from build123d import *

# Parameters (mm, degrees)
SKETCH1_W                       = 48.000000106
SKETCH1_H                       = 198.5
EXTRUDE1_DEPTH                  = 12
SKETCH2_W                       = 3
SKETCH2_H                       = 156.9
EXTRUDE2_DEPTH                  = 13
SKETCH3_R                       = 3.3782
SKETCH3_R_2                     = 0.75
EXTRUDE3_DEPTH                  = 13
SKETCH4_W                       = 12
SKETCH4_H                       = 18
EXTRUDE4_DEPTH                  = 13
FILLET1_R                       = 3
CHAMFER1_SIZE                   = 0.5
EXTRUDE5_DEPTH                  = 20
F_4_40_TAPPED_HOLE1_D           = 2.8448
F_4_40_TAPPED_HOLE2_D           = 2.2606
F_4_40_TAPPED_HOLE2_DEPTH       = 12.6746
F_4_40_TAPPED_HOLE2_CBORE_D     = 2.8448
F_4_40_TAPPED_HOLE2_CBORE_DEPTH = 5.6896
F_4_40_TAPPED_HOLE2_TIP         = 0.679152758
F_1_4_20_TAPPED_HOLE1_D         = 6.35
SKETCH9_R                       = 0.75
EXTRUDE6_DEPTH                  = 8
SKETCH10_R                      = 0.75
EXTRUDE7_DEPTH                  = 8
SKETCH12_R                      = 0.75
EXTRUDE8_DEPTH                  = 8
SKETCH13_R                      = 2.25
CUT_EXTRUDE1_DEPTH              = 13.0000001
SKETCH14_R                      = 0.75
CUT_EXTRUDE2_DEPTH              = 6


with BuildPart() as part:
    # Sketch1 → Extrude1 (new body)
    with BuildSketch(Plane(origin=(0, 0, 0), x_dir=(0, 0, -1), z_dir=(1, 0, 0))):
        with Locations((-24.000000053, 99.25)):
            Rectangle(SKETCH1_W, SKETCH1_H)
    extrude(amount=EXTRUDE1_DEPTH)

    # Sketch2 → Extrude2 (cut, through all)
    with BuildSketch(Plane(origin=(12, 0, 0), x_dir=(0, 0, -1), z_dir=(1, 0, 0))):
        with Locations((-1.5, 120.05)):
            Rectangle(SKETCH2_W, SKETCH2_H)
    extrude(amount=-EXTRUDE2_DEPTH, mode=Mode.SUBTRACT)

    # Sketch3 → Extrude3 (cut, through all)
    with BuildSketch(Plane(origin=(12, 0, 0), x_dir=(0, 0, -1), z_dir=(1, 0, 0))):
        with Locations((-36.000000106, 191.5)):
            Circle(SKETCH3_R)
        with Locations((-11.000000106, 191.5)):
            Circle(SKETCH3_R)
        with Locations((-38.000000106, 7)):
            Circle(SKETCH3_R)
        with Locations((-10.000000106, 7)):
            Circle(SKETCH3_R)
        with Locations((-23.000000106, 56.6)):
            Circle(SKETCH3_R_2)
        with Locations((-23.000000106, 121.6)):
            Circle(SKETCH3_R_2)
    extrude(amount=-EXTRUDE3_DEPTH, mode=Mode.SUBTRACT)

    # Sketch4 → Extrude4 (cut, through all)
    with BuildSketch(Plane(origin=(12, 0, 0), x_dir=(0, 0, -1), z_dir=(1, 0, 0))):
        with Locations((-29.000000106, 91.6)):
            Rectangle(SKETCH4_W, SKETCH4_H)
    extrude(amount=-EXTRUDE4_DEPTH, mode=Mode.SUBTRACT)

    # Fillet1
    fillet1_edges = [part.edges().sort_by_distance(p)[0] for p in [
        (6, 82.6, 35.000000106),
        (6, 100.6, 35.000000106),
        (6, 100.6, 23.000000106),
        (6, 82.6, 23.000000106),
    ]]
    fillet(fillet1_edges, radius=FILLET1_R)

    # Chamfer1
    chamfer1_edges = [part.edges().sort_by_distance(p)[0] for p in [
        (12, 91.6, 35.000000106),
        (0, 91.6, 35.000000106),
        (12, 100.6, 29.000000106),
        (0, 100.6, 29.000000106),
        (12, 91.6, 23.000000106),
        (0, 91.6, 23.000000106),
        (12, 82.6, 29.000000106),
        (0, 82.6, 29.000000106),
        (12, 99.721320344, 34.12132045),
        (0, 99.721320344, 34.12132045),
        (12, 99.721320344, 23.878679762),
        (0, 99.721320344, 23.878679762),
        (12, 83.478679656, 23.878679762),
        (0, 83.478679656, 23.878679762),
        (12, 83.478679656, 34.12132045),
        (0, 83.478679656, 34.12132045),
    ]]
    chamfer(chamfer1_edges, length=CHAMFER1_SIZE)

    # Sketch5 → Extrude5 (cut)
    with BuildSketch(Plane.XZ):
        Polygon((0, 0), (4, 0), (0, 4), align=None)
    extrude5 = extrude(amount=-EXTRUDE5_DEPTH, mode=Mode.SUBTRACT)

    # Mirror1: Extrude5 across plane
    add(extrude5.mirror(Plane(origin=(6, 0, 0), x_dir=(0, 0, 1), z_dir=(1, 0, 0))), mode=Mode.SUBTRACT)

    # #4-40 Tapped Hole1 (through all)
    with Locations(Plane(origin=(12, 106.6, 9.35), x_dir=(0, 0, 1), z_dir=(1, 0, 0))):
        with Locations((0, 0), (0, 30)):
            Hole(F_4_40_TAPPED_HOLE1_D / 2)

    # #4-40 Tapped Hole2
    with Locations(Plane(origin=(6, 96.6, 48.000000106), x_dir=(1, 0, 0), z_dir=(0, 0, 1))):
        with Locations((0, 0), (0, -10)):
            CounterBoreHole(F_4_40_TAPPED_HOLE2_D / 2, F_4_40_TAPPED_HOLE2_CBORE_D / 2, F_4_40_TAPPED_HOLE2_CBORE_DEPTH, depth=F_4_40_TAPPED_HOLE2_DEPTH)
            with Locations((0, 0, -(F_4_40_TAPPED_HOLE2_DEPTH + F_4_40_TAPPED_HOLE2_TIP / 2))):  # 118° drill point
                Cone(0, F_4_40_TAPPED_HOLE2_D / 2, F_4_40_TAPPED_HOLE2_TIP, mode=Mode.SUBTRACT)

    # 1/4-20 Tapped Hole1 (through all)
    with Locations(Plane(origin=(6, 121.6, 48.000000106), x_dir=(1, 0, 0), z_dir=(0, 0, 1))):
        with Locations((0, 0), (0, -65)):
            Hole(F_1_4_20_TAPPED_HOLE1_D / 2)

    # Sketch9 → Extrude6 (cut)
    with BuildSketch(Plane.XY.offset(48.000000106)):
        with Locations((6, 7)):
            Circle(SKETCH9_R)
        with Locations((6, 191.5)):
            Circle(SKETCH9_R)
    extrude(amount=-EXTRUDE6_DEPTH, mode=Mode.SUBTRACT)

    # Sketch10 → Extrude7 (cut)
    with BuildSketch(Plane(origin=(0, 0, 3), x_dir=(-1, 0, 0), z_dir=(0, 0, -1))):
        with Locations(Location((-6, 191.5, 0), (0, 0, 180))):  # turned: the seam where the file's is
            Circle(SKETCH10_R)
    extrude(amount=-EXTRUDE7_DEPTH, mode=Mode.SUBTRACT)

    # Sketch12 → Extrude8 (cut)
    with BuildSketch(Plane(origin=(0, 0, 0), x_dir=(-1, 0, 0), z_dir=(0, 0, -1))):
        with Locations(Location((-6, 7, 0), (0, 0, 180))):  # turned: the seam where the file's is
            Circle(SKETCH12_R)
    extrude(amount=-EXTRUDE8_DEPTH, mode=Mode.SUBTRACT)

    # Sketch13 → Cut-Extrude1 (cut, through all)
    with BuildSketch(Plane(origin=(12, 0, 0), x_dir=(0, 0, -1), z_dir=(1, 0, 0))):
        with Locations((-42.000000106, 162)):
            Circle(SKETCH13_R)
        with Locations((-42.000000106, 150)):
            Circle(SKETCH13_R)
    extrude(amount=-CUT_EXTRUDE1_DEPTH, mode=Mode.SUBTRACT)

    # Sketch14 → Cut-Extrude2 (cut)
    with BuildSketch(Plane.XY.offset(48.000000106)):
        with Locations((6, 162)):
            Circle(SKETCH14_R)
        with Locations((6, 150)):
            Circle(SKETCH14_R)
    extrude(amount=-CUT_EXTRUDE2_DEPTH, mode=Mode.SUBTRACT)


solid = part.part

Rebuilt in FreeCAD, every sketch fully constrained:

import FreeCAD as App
import Part
import Sketcher

V = App.Vector


def edges_at(feature, points):
    """Names of the edges that pass closest to the given points."""
    edges = feature.Shape.Edges
    near = lambda p: min(range(len(edges)), key=lambda i: edges[i].distToShape(Part.Vertex(*p))[0])
    return sorted({f"Edge{near(p) + 1}" for p in points})


def add_polygon(sketch, points):
    """Adds a closed chain of lines whose ends are joined by coincident constraints."""
    first, n = sketch.GeometryCount, len(points)
    for a, b in zip(points, points[1:] + points[:1]):
        sketch.addGeometry(Part.LineSegment(App.Vector(*a, 0), App.Vector(*b, 0)), False)
    for i in range(n):
        sketch.addConstraint(Sketcher.Constraint("Coincident", first + i, 2, first + (i + 1) % n, 1))

doc = App.newDocument("Part")
params = doc.addObject("Spreadsheet::Sheet", "Params")
for row, (alias, value) in enumerate([
    ("sketch1_height", "48 mm"),
    ("sketch1_width", "198.5 mm"),
    ("pad1_length", "12 mm"),
    ("sketch2_height", "3 mm"),
    ("sketch2_width", "156.9 mm"),
    ("sketch3_diameter", "1.5 mm"),
    ("sketch4_width", "18 mm"),
    ("sketch4_height", "12 mm"),
    ("fillet_radius", "3 mm"),
    ("chamfer_size", "0.5 mm"),
    ("sketch5_width", "4 mm"),
    ("pocket4_length", "20 mm"),
    ("hole_diameter", "2.8448 mm"),
    ("hole2_diameter", "2.2606 mm"),
    ("hole2_depth", "12.6746 mm"),
    ("hole2_cbore_diameter", "2.8448 mm"),
    ("hole2_cbore_depth", "5.6896 mm"),
    ("sketch8_diameter", "6.35 mm"),
    ("hole3_diameter", "6.35 mm"),
    ("sketch9_diameter", "1.5 mm"),
    ("pocket5_length", "8 mm"),
    ("sketch10_diameter", "1.5 mm"),
    ("pocket6_length", "8 mm"),
    ("sketch11_diameter", "1.5 mm"),
    ("pocket7_length", "8 mm"),
    ("sketch12_diameter", "4.5 mm"),
    ("sketch13_diameter", "1.5 mm"),
    ("pocket9_length", "6 mm"),
], start=1):
    params.set(f"A{row}", alias)
    params.set(f"B{row}", "=" + value)
    params.setAlias(f"B{row}", alias)

body = doc.addObject("PartDesign::Body", "Body")

sketch1 = doc.addObject("Sketcher::SketchObject", "Sketch")
body.addObject(sketch1)
sketch1.AttachmentSupport = (doc.YZ_Plane, [""])
sketch1.MapMode = "FlatFace"
add_polygon(sketch1, [(198, 48), (0, 48), (0, 0), (198, 0)])
sketch1.addConstraint([
    Sketcher.Constraint("Horizontal", 0),
    Sketcher.Constraint("Vertical", 1),
    Sketcher.Constraint("Horizontal", 2),
    Sketcher.Constraint("Vertical", 3),
    Sketcher.Constraint("Coincident", 1, 2, -1, 1),
    Sketcher.Constraint("DistanceY", 1, 2, 1, 1, 48.0),
    Sketcher.Constraint("DistanceX", 0, 2, 0, 1, 198.5),
])
sketch1.setExpression("Constraints[9]", "Params.sketch1_height")
sketch1.setExpression("Constraints[10]", "Params.sketch1_width")
pad1 = doc.addObject("PartDesign::Pad", "Pad")
body.addObject(pad1)
pad1.Profile = sketch1
pad1.setExpression("Length", "Params.pad1_length")

sketch2 = doc.addObject("Sketcher::SketchObject", "Sketch001")
body.addObject(sketch2)
sketch2.AttachmentSupport = (doc.YZ_Plane, [""])
sketch2.MapMode = "FlatFace"
sketch2.AttachmentOffset = App.Placement(V(0, 0, 12), App.Rotation())
add_polygon(sketch2, [(198.5, 3), (41.6, 3), (41.6, 0), (198.5, 0)])
sketch2.addConstraint([
    Sketcher.Constraint("Horizontal", 0),
    Sketcher.Constraint("Vertical", 1),
    Sketcher.Constraint("Horizontal", 2),
    Sketcher.Constraint("Vertical", 3),
    Sketcher.Constraint("PointOnObject", 1, 2, -1),
    Sketcher.Constraint("DistanceY", 1, 2, 1, 1, 3.0),
    Sketcher.Constraint("DistanceX", 0, 2, 0, 1, 156.9),
    Sketcher.Constraint("DistanceX", -1, 1, 0, 2, 41.6),
])
sketch2.setExpression("Constraints[9]", "Params.sketch2_height")
sketch2.setExpression("Constraints[10]", "Params.sketch2_width")
pocket1 = doc.addObject("PartDesign::Pocket", "Pocket")
body.addObject(pocket1)
pocket1.Profile = sketch2
pocket1.Type = "ThroughAll"

sketch3 = doc.addObject("Sketcher::SketchObject", "Sketch002")
body.addObject(sketch3)
sketch3.AttachmentSupport = (doc.YZ_Plane, [""])
sketch3.MapMode = "FlatFace"
sketch3.AttachmentOffset = App.Placement(V(0, 0, 12), App.Rotation())
sketch3.addGeometry([
    Part.Circle(V(191.5, 36, 0), V(0, 0, 1), 3.4),
    Part.Circle(V(191.5, 11, 0), V(0, 0, 1), 3.4),
    Part.Circle(V(7, 38, 0), V(0, 0, 1), 3.4),
    Part.Circle(V(7, 10, 0), V(0, 0, 1), 3.4),
    Part.Circle(V(56.6, 23, 0), V(0, 0, 1), 0.8),
    Part.Circle(V(121.6, 23, 0), V(0, 0, 1), 0.8),
], False)
sketch3.addConstraint([
    Sketcher.Constraint("Equal", 0, 1),
    Sketcher.Constraint("Equal", 1, 2),
    Sketcher.Constraint("Equal", 2, 3),
    Sketcher.Constraint("Equal", 4, 5),
    Sketcher.Constraint("Horizontal", 4, 3, 5, 3),
    Sketcher.Constraint("Vertical", 0, 3, 1, 3),
    Sketcher.Constraint("Vertical", 2, 3, 3, 3),
    Sketcher.Constraint("Diameter", 4, 1.5),
    Sketcher.Constraint("DistanceY", -1, 1, 0, 3, 36.0),
    Sketcher.Constraint("DistanceY", -1, 1, 1, 3, 11.0),
    Sketcher.Constraint("DistanceX", -1, 1, 2, 3, 7.0),
    Sketcher.Constraint("DistanceY", -1, 1, 2, 3, 38.0),
    Sketcher.Constraint("DistanceY", -1, 1, 3, 3, 10.0),
    Sketcher.Constraint("DistanceY", -1, 1, 4, 3, 23.0),
    Sketcher.Constraint("DistanceX", 4, 3, 5, 3, 65.0),
    Sketcher.Constraint("Diameter", 0, 6.7564),
    Sketcher.Constraint("DistanceX", -1, 1, 0, 3, 191.5),
    Sketcher.Constraint("DistanceX", -1, 1, 4, 3, 56.6),
])
sketch3.setExpression("Constraints[7]", "Params.sketch3_diameter")
pocket2 = doc.addObject("PartDesign::Pocket", "Pocket001")
body.addObject(pocket2)
pocket2.Profile = sketch3
pocket2.Type = "ThroughAll"

sketch4 = doc.addObject("Sketcher::SketchObject", "Sketch003")
body.addObject(sketch4)
sketch4.AttachmentSupport = (doc.YZ_Plane, [""])
sketch4.MapMode = "FlatFace"
sketch4.AttachmentOffset = App.Placement(V(0, 0, 12), App.Rotation())
add_polygon(sketch4, [(101, 35), (83, 35), (83, 23), (101, 23)])
sketch4.addConstraint([
    Sketcher.Constraint("Horizontal", 0),
    Sketcher.Constraint("Vertical", 1),
    Sketcher.Constraint("Horizontal", 2),
    Sketcher.Constraint("Vertical", 3),
    Sketcher.Constraint("DistanceX", 0, 2, 0, 1, 18.0),
    Sketcher.Constraint("DistanceY", 1, 2, 1, 1, 12.0),
    Sketcher.Constraint("DistanceY", -1, 1, 0, 2, 35.0),
    Sketcher.Constraint("DistanceX", -1, 1, 0, 2, 82.6),
])
sketch4.setExpression("Constraints[8]", "Params.sketch4_width")
sketch4.setExpression("Constraints[9]", "Params.sketch4_height")
pocket3 = doc.addObject("PartDesign::Pocket", "Pocket002")
body.addObject(pocket3)
pocket3.Profile = sketch4
pocket3.Type = "ThroughAll"
doc.recompute()

fillet = doc.addObject("PartDesign::Fillet", "Fillet")
body.addObject(fillet)
fillet.Base = (pocket3, edges_at(pocket3, [
    (6, 82.6, 35),
    (6, 100.6, 35),
    (6, 100.6, 23),
    (6, 82.6, 23),
]))
fillet.setExpression("Radius", "Params.fillet_radius")
doc.recompute()

chamfer = doc.addObject("PartDesign::Chamfer", "Chamfer")
body.addObject(chamfer)
chamfer.Base = (fillet, edges_at(fillet, [
    (12, 91.6, 35),
    (0, 91.6, 35),
    (12, 100.6, 29),
    (0, 100.6, 29),
    (12, 91.6, 23),
    (0, 91.6, 23),
    (12, 82.6, 29),
    (0, 82.6, 29),
    (12, 99.721, 34.121),
    (0, 99.721, 34.121),
    (12, 99.721, 23.879),
    (0, 99.721, 23.879),
    (12, 83.479, 23.879),
    (0, 83.479, 23.879),
    (12, 83.479, 34.121),
    (0, 83.479, 34.121),
]))
chamfer.setExpression("Size", "Params.chamfer_size")

sketch5 = doc.addObject("Sketcher::SketchObject", "Sketch004")
body.addObject(sketch5)
sketch5.AttachmentSupport = (doc.XZ_Plane, [""])
sketch5.MapMode = "FlatFace"
add_polygon(sketch5, [(0, 0), (4, 0), (0, 4)])
sketch5.addConstraint([
    Sketcher.Constraint("Horizontal", 0),
    Sketcher.Constraint("Vertical", 2),
    Sketcher.Constraint("Coincident", 2, 2, -1, 1),
    Sketcher.Constraint("Equal", 0, 2),
    Sketcher.Constraint("DistanceX", 0, 1, 0, 2, 4.0),
])
sketch5.setExpression("Constraints[7]", "Params.sketch5_width")
pocket4 = doc.addObject("PartDesign::Pocket", "Pocket003")
body.addObject(pocket4)
pocket4.Profile = sketch5
pocket4.setExpression("Length", "Params.pocket4_length")
doc.recompute()

datumplane = doc.addObject("PartDesign::Plane", "DatumPlane")
body.addObject(datumplane)
datumplane.AttachmentSupport = (doc.YZ_Plane, [""])
datumplane.MapMode = "FlatFace"
datumplane.AttachmentOffset = App.Placement(V(0, 0, 6), App.Rotation())
mirrored = doc.addObject("PartDesign::Mirrored", "Mirrored")
body.addObject(mirrored)
mirrored.Originals = [pocket4]
mirrored.MirrorPlane = (datumplane, [""])
body.Tip = mirrored

sketch6 = doc.addObject("Sketcher::SketchObject", "Sketch005")
body.addObject(sketch6)
sketch6.AttachmentSupport = (doc.YZ_Plane, [""])
sketch6.MapMode = "FlatFace"
sketch6.AttachmentOffset = App.Placement(V(0, 0, 12), App.Rotation())
sketch6.addGeometry([
    Part.Circle(V(106.6, 9.3, 0), V(0, 0, 1), 1.4),
    Part.Circle(V(76.6, 9.3, 0), V(0, 0, 1), 1.4),
], False)
sketch6.addConstraint([
    Sketcher.Constraint("Equal", 0, 1),
    Sketcher.Constraint("Horizontal", 0, 3, 1, 3),
    Sketcher.Constraint("DistanceX", 1, 3, 0, 3, 30.0),
    Sketcher.Constraint("Diameter", 0, 2.8448),
    Sketcher.Constraint("DistanceX", -1, 1, 0, 3, 106.6),
    Sketcher.Constraint("DistanceY", -1, 1, 0, 3, 9.35),
])
doc.recompute()
hole = doc.addObject("PartDesign::Hole", "Hole")
body.addObject(hole)
hole.Profile = sketch6
hole.ThreadType = "None"
hole.setExpression("Diameter", "Params.hole_diameter")
hole.DepthType = "ThroughAll"

sketch7 = doc.addObject("Sketcher::SketchObject", "Sketch006")
body.addObject(sketch7)
sketch7.AttachmentSupport = (doc.XY_Plane, [""])
sketch7.MapMode = "FlatFace"
sketch7.AttachmentOffset = App.Placement(V(0, 0, 48), App.Rotation())
sketch7.addGeometry([
    Part.Circle(V(6, 96.6, 0), V(0, 0, 1), 1.1),
    Part.Circle(V(6, 86.6, 0), V(0, 0, 1), 1.1),
], False)
sketch7.addConstraint([
    Sketcher.Constraint("Equal", 0, 1),
    Sketcher.Constraint("Vertical", 0, 3, 1, 3),
    Sketcher.Constraint("DistanceX", -1, 1, 0, 3, 6.0),
    Sketcher.Constraint("DistanceY", 1, 3, 0, 3, 10.0),
    Sketcher.Constraint("Diameter", 0, 2.2606),
    Sketcher.Constraint("DistanceY", -1, 1, 0, 3, 96.6),
])
doc.recompute()
hole2 = doc.addObject("PartDesign::Hole", "Hole001")
body.addObject(hole2)
hole2.Profile = sketch7
hole2.ThreadType = "None"
hole2.setExpression("Diameter", "Params.hole2_diameter")
hole2.DepthType = "Dimension"
hole2.setExpression("Depth", "Params.hole2_depth")
hole2.DrillPoint = "Angled"
hole2.DrillPointAngle = 118
hole2.HoleCutType = "Counterbore"
hole2.setExpression("HoleCutDiameter", "Params.hole2_cbore_diameter")
hole2.setExpression("HoleCutDepth", "Params.hole2_cbore_depth")

sketch8 = doc.addObject("Sketcher::SketchObject", "Sketch007")
body.addObject(sketch8)
sketch8.AttachmentSupport = (doc.XY_Plane, [""])
sketch8.MapMode = "FlatFace"
sketch8.AttachmentOffset = App.Placement(V(0, 0, 48), App.Rotation())
sketch8.addGeometry([
    Part.Circle(V(6, 121.6, 0), V(0, 0, 1), 3.2),
    Part.Circle(V(6, 56.6, 0), V(0, 0, 1), 3.2),
], False)
sketch8.addConstraint([
    Sketcher.Constraint("Equal", 0, 1),
    Sketcher.Constraint("Vertical", 0, 3, 1, 3),
    Sketcher.Constraint("Diameter", 0, 6.35),
    Sketcher.Constraint("DistanceX", -1, 1, 0, 3, 6.0),
    Sketcher.Constraint("DistanceY", 1, 3, 0, 3, 65.0),
    Sketcher.Constraint("DistanceY", -1, 1, 0, 3, 121.6),
])
sketch8.setExpression("Constraints[2]", "Params.sketch8_diameter")
doc.recompute()
hole3 = doc.addObject("PartDesign::Hole", "Hole002")
body.addObject(hole3)
hole3.Profile = sketch8
hole3.ThreadType = "None"
hole3.setExpression("Diameter", "Params.hole3_diameter")
hole3.DepthType = "ThroughAll"

sketch9 = doc.addObject("Sketcher::SketchObject", "Sketch008")
body.addObject(sketch9)
sketch9.AttachmentSupport = (doc.XY_Plane, [""])
sketch9.MapMode = "FlatFace"
sketch9.AttachmentOffset = App.Placement(V(0, 0, 48), App.Rotation())
sketch9.addGeometry([
    Part.Circle(V(6, 7, 0), V(0, 0, 1), 0.8),
    Part.Circle(V(6, 191.5, 0), V(0, 0, 1), 0.8),
], False)
sketch9.addConstraint([
    Sketcher.Constraint("Equal", 0, 1),
    Sketcher.Constraint("Vertical", 0, 3, 1, 3),
    Sketcher.Constraint("Diameter", 0, 1.5),
    Sketcher.Constraint("DistanceX", -1, 1, 0, 3, 6.0),
    Sketcher.Constraint("DistanceY", -1, 1, 0, 3, 7.0),
    Sketcher.Constraint("DistanceY", -1, 1, 1, 3, 191.5),
])
sketch9.setExpression("Constraints[2]", "Params.sketch9_diameter")
pocket5 = doc.addObject("PartDesign::Pocket", "Pocket004")
body.addObject(pocket5)
pocket5.Profile = sketch9
pocket5.setExpression("Length", "Params.pocket5_length")

sketch10 = doc.addObject("Sketcher::SketchObject", "Sketch009")
body.addObject(sketch10)
sketch10.AttachmentSupport = (doc.XY_Plane, [""])
sketch10.MapMode = "FlatFace"
sketch10.AttachmentOffset = App.Placement(V(0, 0, 3), App.Rotation())
sketch10.addGeometry(Part.Circle(V(6, 191.5, 0), V(0, 0, 1), 0.8), False)
sketch10.addConstraint([
    Sketcher.Constraint("Diameter", 0, 1.5),
    Sketcher.Constraint("DistanceX", -1, 1, 0, 3, 6.0),
    Sketcher.Constraint("DistanceY", -1, 1, 0, 3, 191.5),
])
sketch10.setExpression("Constraints[0]", "Params.sketch10_diameter")
pocket6 = doc.addObject("PartDesign::Pocket", "Pocket005")
body.addObject(pocket6)
pocket6.Profile = sketch10
pocket6.setExpression("Length", "Params.pocket6_length")
pocket6.Reversed = True

sketch11 = doc.addObject("Sketcher::SketchObject", "Sketch010")
body.addObject(sketch11)
sketch11.AttachmentSupport = (doc.XY_Plane, [""])
sketch11.MapMode = "FlatFace"
sketch11.addGeometry(Part.Circle(V(6, 7, 0), V(0, 0, 1), 0.8), False)
sketch11.addConstraint([
    Sketcher.Constraint("Diameter", 0, 1.5),
    Sketcher.Constraint("DistanceX", -1, 1, 0, 3, 6.0),
    Sketcher.Constraint("DistanceY", -1, 1, 0, 3, 7.0),
])
sketch11.setExpression("Constraints[0]", "Params.sketch11_diameter")
pocket7 = doc.addObject("PartDesign::Pocket", "Pocket006")
body.addObject(pocket7)
pocket7.Profile = sketch11
pocket7.setExpression("Length", "Params.pocket7_length")
pocket7.Reversed = True

sketch12 = doc.addObject("Sketcher::SketchObject", "Sketch011")
body.addObject(sketch12)
sketch12.AttachmentSupport = (doc.YZ_Plane, [""])
sketch12.MapMode = "FlatFace"
sketch12.AttachmentOffset = App.Placement(V(0, 0, 12), App.Rotation())
sketch12.addGeometry([
    Part.Circle(V(162, 42, 0), V(0, 0, 1), 2.2),
    Part.Circle(V(150, 42, 0), V(0, 0, 1), 2.2),
], False)
sketch12.addConstraint([
    Sketcher.Constraint("Equal", 0, 1),
    Sketcher.Constraint("Horizontal", 0, 3, 1, 3),
    Sketcher.Constraint("Diameter", 0, 4.5),
    Sketcher.Constraint("DistanceX", -1, 1, 0, 3, 162.0),
    Sketcher.Constraint("DistanceY", -1, 1, 0, 3, 42.0),
    Sketcher.Constraint("DistanceX", -1, 1, 1, 3, 150.0),
])
sketch12.setExpression("Constraints[2]", "Params.sketch12_diameter")
pocket8 = doc.addObject("PartDesign::Pocket", "Pocket007")
body.addObject(pocket8)
pocket8.Profile = sketch12
pocket8.Type = "ThroughAll"

sketch13 = doc.addObject("Sketcher::SketchObject", "Sketch012")
body.addObject(sketch13)
sketch13.AttachmentSupport = (doc.XY_Plane, [""])
sketch13.MapMode = "FlatFace"
sketch13.AttachmentOffset = App.Placement(V(0, 0, 48), App.Rotation())
sketch13.addGeometry([
    Part.Circle(V(6, 162, 0), V(0, 0, 1), 0.8),
    Part.Circle(V(6, 150, 0), V(0, 0, 1), 0.8),
], False)
sketch13.addConstraint([
    Sketcher.Constraint("Equal", 0, 1),
    Sketcher.Constraint("Vertical", 0, 3, 1, 3),
    Sketcher.Constraint("Diameter", 0, 1.5),
    Sketcher.Constraint("DistanceX", -1, 1, 0, 3, 6.0),
    Sketcher.Constraint("DistanceY", -1, 1, 0, 3, 162.0),
    Sketcher.Constraint("DistanceY", -1, 1, 1, 3, 150.0),
])
sketch13.setExpression("Constraints[2]", "Params.sketch13_diameter")
pocket9 = doc.addObject("PartDesign::Pocket", "Pocket008")
body.addObject(pocket9)
pocket9.Profile = sketch13
pocket9.setExpression("Length", "Params.pocket9_length")

doc.recompute()
